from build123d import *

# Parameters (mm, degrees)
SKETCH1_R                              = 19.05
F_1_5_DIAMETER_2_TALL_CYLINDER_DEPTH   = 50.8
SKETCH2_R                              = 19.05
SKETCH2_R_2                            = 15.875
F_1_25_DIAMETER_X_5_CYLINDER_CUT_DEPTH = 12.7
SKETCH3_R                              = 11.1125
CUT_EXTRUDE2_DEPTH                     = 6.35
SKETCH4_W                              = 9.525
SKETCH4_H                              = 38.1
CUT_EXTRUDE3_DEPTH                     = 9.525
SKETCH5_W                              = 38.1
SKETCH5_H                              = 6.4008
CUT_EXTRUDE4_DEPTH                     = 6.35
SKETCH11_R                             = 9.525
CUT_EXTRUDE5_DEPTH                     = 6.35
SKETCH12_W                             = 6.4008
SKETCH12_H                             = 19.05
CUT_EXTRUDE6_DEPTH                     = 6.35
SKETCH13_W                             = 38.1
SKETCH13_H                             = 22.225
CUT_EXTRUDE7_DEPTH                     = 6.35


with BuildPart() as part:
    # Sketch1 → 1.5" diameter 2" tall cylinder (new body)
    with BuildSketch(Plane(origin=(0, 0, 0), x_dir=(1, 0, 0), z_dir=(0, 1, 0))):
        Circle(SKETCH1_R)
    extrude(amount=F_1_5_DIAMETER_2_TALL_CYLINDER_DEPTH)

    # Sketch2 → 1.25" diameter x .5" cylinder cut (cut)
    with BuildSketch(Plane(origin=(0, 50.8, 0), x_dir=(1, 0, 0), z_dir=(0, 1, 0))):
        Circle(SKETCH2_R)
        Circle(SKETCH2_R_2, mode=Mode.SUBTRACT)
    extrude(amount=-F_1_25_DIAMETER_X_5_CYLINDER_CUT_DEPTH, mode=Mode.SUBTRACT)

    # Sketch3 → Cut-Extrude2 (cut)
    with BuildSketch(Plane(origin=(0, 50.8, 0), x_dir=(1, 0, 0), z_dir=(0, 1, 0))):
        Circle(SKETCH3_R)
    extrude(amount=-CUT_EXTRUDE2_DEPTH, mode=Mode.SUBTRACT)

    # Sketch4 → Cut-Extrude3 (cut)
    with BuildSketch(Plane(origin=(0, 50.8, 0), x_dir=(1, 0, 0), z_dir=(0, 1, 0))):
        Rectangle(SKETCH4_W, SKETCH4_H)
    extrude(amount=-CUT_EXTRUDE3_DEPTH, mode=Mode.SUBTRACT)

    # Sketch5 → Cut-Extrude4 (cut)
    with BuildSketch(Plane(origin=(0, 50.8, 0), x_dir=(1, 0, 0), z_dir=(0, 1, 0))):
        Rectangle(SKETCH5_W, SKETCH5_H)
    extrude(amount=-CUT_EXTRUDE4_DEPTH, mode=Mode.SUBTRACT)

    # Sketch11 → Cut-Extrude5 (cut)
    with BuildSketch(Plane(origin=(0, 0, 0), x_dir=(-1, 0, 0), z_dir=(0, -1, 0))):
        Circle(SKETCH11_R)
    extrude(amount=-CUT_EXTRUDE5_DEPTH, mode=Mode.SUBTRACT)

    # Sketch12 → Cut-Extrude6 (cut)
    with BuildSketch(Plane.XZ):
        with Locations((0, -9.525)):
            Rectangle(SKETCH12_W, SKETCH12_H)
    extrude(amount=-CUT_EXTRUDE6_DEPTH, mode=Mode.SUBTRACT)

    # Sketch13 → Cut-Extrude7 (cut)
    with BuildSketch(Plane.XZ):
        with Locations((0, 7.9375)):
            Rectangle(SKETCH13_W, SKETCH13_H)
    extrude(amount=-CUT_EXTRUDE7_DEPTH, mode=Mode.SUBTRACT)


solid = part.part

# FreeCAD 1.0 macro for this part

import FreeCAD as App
import Part
import Sketcher
Q = App.Units.Quantity


def add_polygon(sketch, points):
    """Adds a closed chain of lines whose ends are joined by coincident constraints."""
    first, n = sketch.GeometryCount, len(points)
    for a, b in zip(points, points[1:] + points[:1]):
        sketch.addGeometry(Part.LineSegment(App.Vector(*a, 0), App.Vector(*b, 0)), False)
    for i in range(n):
        sketch.addConstraint(Sketcher.Constraint("Coincident", first + i, 2, first + (i + 1) % n, 1))

doc = App.newDocument("Part")
body = doc.addObject("PartDesign::Body", "Body")

# Sketch on XZ plane
sketch1 = doc.addObject("Sketcher::SketchObject", "Sketch")
body.addObject(sketch1)
sketch1.AttachmentSupport = (doc.XZ_Plane, [""])
sketch1.MapMode = "FlatFace"
sketch1.addGeometry(Part.Circle(App.Vector(0, 0, 0), App.Vector(0, 0, 1), 19), False)
sketch1.addConstraint(Sketcher.Constraint("Coincident", 0, 3, -1, 1))
sketch1.addConstraint(Sketcher.Constraint("Diameter", 0, Q("1.5 in")))
pad1 = doc.addObject("PartDesign::Pad", "Pad")
body.addObject(pad1)
pad1.Profile = sketch1
pad1.Length = Q("2 in")
pad1.Reversed = True

# Sketch on XZ plane
sketch2 = doc.addObject("Sketcher::SketchObject", "Sketch001")
body.addObject(sketch2)
sketch2.AttachmentSupport = (doc.XZ_Plane, [""])
sketch2.MapMode = "FlatFace"
sketch2.AttachmentOffset = App.Placement(App.Vector(0, 0, -2 * 25.4), App.Rotation())
sketch2.addGeometry(Part.Circle(App.Vector(0, 0, 0), App.Vector(0, 0, 1), 19), False)
sketch2.addGeometry(Part.Circle(App.Vector(0, 0, 0), App.Vector(0, 0, 1), 16), False)
sketch2.addConstraint(Sketcher.Constraint("Coincident", 0, 3, -1, 1))
sketch2.addConstraint(Sketcher.Constraint("Coincident", 1, 3, -1, 1))
sketch2.addConstraint(Sketcher.Constraint("Diameter", 0, Q("1.5 in")))
sketch2.addConstraint(Sketcher.Constraint("Diameter", 1, Q("1.25 in")))
pocket1 = doc.addObject("PartDesign::Pocket", "Pocket")
body.addObject(pocket1)
pocket1.Profile = sketch2
pocket1.Length = Q("0.5 in")
pocket1.Reversed = True

# Sketch on XZ plane
sketch3 = doc.addObject("Sketcher::SketchObject", "Sketch002")
body.addObject(sketch3)
sketch3.AttachmentSupport = (doc.XZ_Plane, [""])
sketch3.MapMode = "FlatFace"
sketch3.AttachmentOffset = App.Placement(App.Vector(0, 0, -2 * 25.4), App.Rotation())
sketch3.addGeometry(Part.Circle(App.Vector(0, 0, 0), App.Vector(0, 0, 1), 11), False)
sketch3.addConstraint(Sketcher.Constraint("Coincident", 0, 3, -1, 1))
sketch3.addConstraint(Sketcher.Constraint("Diameter", 0, Q("0.875 in")))
pocket2 = doc.addObject("PartDesign::Pocket", "Pocket001")
body.addObject(pocket2)
pocket2.Profile = sketch3
pocket2.Length = Q("0.25 in")
pocket2.Reversed = True

# Sketch on XZ plane
sketch4 = doc.addObject("Sketcher::SketchObject", "Sketch003")
body.addObject(sketch4)
sketch4.AttachmentSupport = (doc.XZ_Plane, [""])
sketch4.MapMode = "FlatFace"
sketch4.AttachmentOffset = App.Placement(App.Vector(0, 0, -2 * 25.4), App.Rotation())
add_polygon(sketch4, [(-5, -19), (-5, 19), (5, 19), (5, -19)])  # lines 0-3
sketch4.addConstraint(Sketcher.Constraint("Vertical", 0))
sketch4.addConstraint(Sketcher.Constraint("Horizontal", 1))
sketch4.addConstraint(Sketcher.Constraint("Vertical", 2))
sketch4.addConstraint(Sketcher.Constraint("Horizontal", 3))
sketch4.addConstraint(Sketcher.Constraint("Symmetric", 0, 2, 2, 2, -1, 1))
sketch4.addConstraint(Sketcher.Constraint("DistanceY", 0, 1, 0, 2, Q("1.5 in")))
sketch4.addConstraint(Sketcher.Constraint("DistanceX", 1, 1, 1, 2, Q("0.375 in")))
pocket3 = doc.addObject("PartDesign::Pocket", "Pocket002")
body.addObject(pocket3)
pocket3.Profile = sketch4
pocket3.Length = Q("0.375 in")
pocket3.Reversed = True

# Sketch on XZ plane
sketch5 = doc.addObject("Sketcher::SketchObject", "Sketch004")
body.addObject(sketch5)
sketch5.AttachmentSupport = (doc.XZ_Plane, [""])
sketch5.MapMode = "FlatFace"
sketch5.AttachmentOffset = App.Placement(App.Vector(0, 0, -2 * 25.4), App.Rotation())
add_polygon(sketch5, [(-19, -3), (-19, 3), (19, 3), (19, -3)])  # lines 0-3
sketch5.addConstraint(Sketcher.Constraint("Vertical", 0))
sketch5.addConstraint(Sketcher.Constraint("Horizontal", 1))
sketch5.addConstraint(Sketcher.Constraint("Vertical", 2))
sketch5.addConstraint(Sketcher.Constraint("Horizontal", 3))
sketch5.addConstraint(Sketcher.Constraint("Symmetric", 0, 2, 2, 2, -1, 1))
sketch5.addConstraint(Sketcher.Constraint("DistanceX", 1, 1, 1, 2, Q("1.5 in")))
sketch5.addConstraint(Sketcher.Constraint("DistanceY", 0, 1, 0, 2, Q("0.252 in")))
pocket4 = doc.addObject("PartDesign::Pocket", "Pocket003")
body.addObject(pocket4)
pocket4.Profile = sketch5
pocket4.Length = Q("0.25 in")
pocket4.Reversed = True

# Sketch on XZ plane
sketch6 = doc.addObject("Sketcher::SketchObject", "Sketch005")
body.addObject(sketch6)
sketch6.AttachmentSupport = (doc.XZ_Plane, [""])
sketch6.MapMode = "FlatFace"
sketch6.addGeometry(Part.Circle(App.Vector(0, 0, 0), App.Vector(0, 0, 1), 10), False)
sketch6.addConstraint(Sketcher.Constraint("Coincident", 0, 3, -1, 1))
sketch6.addConstraint(Sketcher.Constraint("Diameter", 0, Q("0.75 in")))
pocket5 = doc.addObject("PartDesign::Pocket", "Pocket004")
body.addObject(pocket5)
pocket5.Profile = sketch6
pocket5.Length = Q("0.25 in")

# Sketch on XZ plane
sketch7 = doc.addObject("Sketcher::SketchObject", "Sketch006")
body.addObject(sketch7)
sketch7.AttachmentSupport = (doc.XZ_Plane, [""])
sketch7.MapMode = "FlatFace"
add_polygon(sketch7, [(-3, 0), (-3, -19), (3, -19), (3, 0)])  # lines 0-3
sketch7.addConstraint(Sketcher.Constraint("Vertical", 0))
sketch7.addConstraint(Sketcher.Constraint("Horizontal", 1))
sketch7.addConstraint(Sketcher.Constraint("Vertical", 2))
sketch7.addConstraint(Sketcher.Constraint("Horizontal", 3))
sketch7.addConstraint(Sketcher.Constraint("Symmetric", 2, 2, 3, 2, -1, 1))
sketch7.addConstraint(Sketcher.Constraint("DistanceY", 0, 2, 0, 1, Q("0.75 in")))
sketch7.addConstraint(Sketcher.Constraint("DistanceX", 1, 1, 1, 2, Q("0.252 in")))
pocket6 = doc.addObject("PartDesign::Pocket", "Pocket005")
body.addObject(pocket6)
pocket6.Profile = sketch7
pocket6.Length = Q("0.25 in")

# Sketch on XZ plane
sketch8 = doc.addObject("Sketcher::SketchObject", "Sketch007")
body.addObject(sketch8)
sketch8.AttachmentSupport = (doc.XZ_Plane, [""])
sketch8.MapMode = "FlatFace"
add_polygon(sketch8, [(-19, 19), (-19, -3), (19, -3), (19, 19)])  # lines 0-3
sketch8.addConstraint(Sketcher.Constraint("Vertical", 0))
sketch8.addConstraint(Sketcher.Constraint("Horizontal", 1))
sketch8.addConstraint(Sketcher.Constraint("Vertical", 2))
sketch8.addConstraint(Sketcher.Constraint("Horizontal", 3))
sketch8.addConstraint(Sketcher.Constraint("DistanceX", 1, 1, 1, 2, Q("1.5 in")))
sketch8.addConstraint(Sketcher.Constraint("DistanceY", 0, 2, 0, 1, Q("0.875 in")))
sketch8.addConstraint(Sketcher.Constraint("DistanceX", 0, 2, -1, 1, Q("0.75 in")))
sketch8.addConstraint(Sketcher.Constraint("DistanceY", -1, 1, 2, 2, Q("0.75 in")))
pocket7 = doc.addObject("PartDesign::Pocket", "Pocket006")
body.addObject(pocket7)
pocket7.Profile = sketch8
pocket7.Length = Q("0.25 in")

doc.recompute()
